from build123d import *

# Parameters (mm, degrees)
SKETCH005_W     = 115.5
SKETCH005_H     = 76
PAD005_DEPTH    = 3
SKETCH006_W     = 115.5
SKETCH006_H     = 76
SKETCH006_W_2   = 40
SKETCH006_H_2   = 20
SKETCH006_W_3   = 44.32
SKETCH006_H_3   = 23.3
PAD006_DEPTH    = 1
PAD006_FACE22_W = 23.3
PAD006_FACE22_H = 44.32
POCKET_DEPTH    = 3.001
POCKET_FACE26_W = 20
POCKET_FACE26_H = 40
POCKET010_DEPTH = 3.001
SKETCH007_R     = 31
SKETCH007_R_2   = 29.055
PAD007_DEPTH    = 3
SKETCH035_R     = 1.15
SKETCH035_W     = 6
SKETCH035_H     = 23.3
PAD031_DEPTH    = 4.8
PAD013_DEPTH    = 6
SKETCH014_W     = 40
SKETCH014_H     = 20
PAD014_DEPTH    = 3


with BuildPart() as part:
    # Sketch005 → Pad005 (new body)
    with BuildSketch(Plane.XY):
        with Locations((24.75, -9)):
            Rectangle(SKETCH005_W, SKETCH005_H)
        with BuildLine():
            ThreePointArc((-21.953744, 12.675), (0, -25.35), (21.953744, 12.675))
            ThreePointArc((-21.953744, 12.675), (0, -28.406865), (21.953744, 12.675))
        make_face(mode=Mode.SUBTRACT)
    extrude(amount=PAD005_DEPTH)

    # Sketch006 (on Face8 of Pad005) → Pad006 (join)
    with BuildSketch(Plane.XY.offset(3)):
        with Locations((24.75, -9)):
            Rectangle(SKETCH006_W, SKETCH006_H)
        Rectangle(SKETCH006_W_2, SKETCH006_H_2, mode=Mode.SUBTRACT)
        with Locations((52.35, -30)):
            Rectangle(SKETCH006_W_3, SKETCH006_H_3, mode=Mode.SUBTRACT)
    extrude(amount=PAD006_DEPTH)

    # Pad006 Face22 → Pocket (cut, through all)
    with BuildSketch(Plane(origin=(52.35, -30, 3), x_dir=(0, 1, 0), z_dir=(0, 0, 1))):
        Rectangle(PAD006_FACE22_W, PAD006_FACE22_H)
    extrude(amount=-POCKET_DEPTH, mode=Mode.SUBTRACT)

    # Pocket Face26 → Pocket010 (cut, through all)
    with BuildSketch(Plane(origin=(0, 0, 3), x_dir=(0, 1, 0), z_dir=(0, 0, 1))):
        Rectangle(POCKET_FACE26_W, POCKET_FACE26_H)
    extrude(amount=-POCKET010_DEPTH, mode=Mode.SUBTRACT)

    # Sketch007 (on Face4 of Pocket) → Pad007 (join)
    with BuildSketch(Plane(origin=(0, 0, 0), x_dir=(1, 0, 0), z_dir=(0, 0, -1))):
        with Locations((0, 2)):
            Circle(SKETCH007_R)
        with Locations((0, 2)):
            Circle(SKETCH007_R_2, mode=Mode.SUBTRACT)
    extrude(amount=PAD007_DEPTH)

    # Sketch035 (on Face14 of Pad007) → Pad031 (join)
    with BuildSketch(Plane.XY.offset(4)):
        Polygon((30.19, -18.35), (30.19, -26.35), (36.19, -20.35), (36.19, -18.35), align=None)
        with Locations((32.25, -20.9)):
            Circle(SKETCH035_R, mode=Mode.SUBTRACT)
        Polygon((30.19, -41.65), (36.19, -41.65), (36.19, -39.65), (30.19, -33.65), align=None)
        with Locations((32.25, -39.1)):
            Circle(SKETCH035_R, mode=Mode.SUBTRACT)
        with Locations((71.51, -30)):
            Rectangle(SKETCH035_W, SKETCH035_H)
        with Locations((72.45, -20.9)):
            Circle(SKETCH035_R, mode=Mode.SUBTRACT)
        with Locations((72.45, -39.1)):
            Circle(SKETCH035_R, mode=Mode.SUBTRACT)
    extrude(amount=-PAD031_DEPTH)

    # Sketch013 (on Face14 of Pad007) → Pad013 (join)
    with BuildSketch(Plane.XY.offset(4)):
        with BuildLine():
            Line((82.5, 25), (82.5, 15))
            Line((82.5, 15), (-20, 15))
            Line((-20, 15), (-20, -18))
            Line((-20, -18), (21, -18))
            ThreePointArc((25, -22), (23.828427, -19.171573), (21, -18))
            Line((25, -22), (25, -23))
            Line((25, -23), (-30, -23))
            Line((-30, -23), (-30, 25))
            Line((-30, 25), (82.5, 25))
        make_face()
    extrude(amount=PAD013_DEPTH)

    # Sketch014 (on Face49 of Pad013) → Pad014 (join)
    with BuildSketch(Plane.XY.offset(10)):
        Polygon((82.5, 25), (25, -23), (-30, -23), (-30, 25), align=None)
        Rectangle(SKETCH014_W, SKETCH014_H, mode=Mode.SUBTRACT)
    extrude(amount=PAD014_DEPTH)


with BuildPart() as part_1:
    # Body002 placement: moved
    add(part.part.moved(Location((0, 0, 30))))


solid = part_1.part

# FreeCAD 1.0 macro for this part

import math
import FreeCAD as App
import Part
import Sketcher

V = App.Vector
Q = App.Units.Quantity

doc = App.newDocument("Part")
body = doc.addObject("PartDesign::Body", "Body")

sketch1 = doc.addObject("Sketcher::SketchObject", "Sketch")
body.addObject(sketch1)
sketch1.AttachmentSupport = (doc.XY_Plane, [""])
sketch1.MapMode = "FlatFace"
sketch1.addGeometry(Part.LineSegment(V(-33, 29, 0), V(-33, -47, 0)), False)
sketch1.addGeometry(Part.LineSegment(V(-33, -47, 0), V(82, -47, 0)), False)
sketch1.addGeometry(Part.LineSegment(V(82, -47, 0), V(82, 29, 0)), False)
sketch1.addGeometry(Part.LineSegment(V(82, 29, 0), V(-33, 29, 0)), False)
sketch1.addGeometry(Part.ArcOfCircle(Part.Circle(V(0, -2, 0), V(0, 0, 1), 26), math.radians(146), math.radians(394)), False)
sketch1.addGeometry(Part.ArcOfCircle(Part.Circle(V(0, 0, 0), V(0, 0, 1), 25), math.radians(150), math.radians(390)), False)
sketch1.addConstraint(Sketcher.Constraint("Coincident", 0, 2, 1, 1))
sketch1.addConstraint(Sketcher.Constraint("Coincident", 1, 2, 2, 1))
sketch1.addConstraint(Sketcher.Constraint("Coincident", 2, 2, 3, 1))
sketch1.addConstraint(Sketcher.Constraint("Coincident", 3, 2, 0, 1))
sketch1.addConstraint(Sketcher.Constraint("Coincident", 4, 1, 5, 1))
sketch1.addConstraint(Sketcher.Constraint("Coincident", 5, 2, 4, 2))
sketch1.addConstraint(Sketcher.Constraint("Vertical", 0))
sketch1.addConstraint(Sketcher.Constraint("Horizontal", 1))
sketch1.addConstraint(Sketcher.Constraint("Vertical", 2))
sketch1.addConstraint(Sketcher.Constraint("Horizontal", 3))
sketch1.addConstraint(Sketcher.Constraint("Coincident", 5, 3, -1, 1))
sketch1.addConstraint(Sketcher.Constraint("PointOnObject", 4, 3, -2))
sketch1.addConstraint(Sketcher.Constraint("DistanceY", 0, 2, 0, 1, Q("76 mm")))
sketch1.addConstraint(Sketcher.Constraint("Radius", 5, Q("25.35 mm")))
sketch1.addConstraint(Sketcher.Constraint("DistanceX", 1, 1, 1, 2, Q("115.5 mm")))
sketch1.addConstraint(Sketcher.Constraint("DistanceY", 4, 3, -1, 1, Q("2 mm")))
sketch1.addConstraint(Sketcher.Constraint("DistanceX", 0, 2, -1, 1, Q("33 mm")))
sketch1.addConstraint(Sketcher.Constraint("DistanceY", 0, 2, -1, 1, Q("47 mm")))
sketch1.addConstraint(Sketcher.Constraint("DistanceY", -1, 1, 4, 1, Q("12.675 mm")))
pad1 = doc.addObject("PartDesign::Pad", "Pad")
body.addObject(pad1)
pad1.Profile = sketch1
pad1.Length = 3

sketch2 = doc.addObject("Sketcher::SketchObject", "Sketch001")
body.addObject(sketch2)
sketch2.AttachmentSupport = (doc.XY_Plane, [""])
sketch2.MapMode = "FlatFace"
sketch2.AttachmentOffset = App.Placement(V(0, 0, 3), App.Rotation())
sketch2.addGeometry(Part.LineSegment(V(-33, 29, 0), V(-33, -47, 0)), False)
sketch2.addGeometry(Part.LineSegment(V(-33, -47, 0), V(82, -47, 0)), False)
sketch2.addGeometry(Part.LineSegment(V(82, -47, 0), V(82, 29, 0)), False)
sketch2.addGeometry(Part.LineSegment(V(82, 29, 0), V(-33, 29, 0)), False)
sketch2.addGeometry(Part.LineSegment(V(75, -42, 0), V(30, -42, 0)), False)
sketch2.addGeometry(Part.LineSegment(V(30, -42, 0), V(30, -18, 0)), False)
sketch2.addGeometry(Part.LineSegment(V(30, -18, 0), V(75, -18, 0)), False)
sketch2.addGeometry(Part.LineSegment(V(75, -18, 0), V(75, -42, 0)), False)
sketch2.addGeometry(Part.LineSegment(V(20, -10, 0), V(-20, -10, 0)), False)
sketch2.addGeometry(Part.LineSegment(V(-20, -10, 0), V(-20, 10, 0)), False)
sketch2.addGeometry(Part.LineSegment(V(-20, 10, 0), V(20, 10, 0)), False)
sketch2.addGeometry(Part.LineSegment(V(20, 10, 0), V(20, -10, 0)), False)
sketch2.addConstraint(Sketcher.Constraint("Coincident", 0, 2, 1, 1))
sketch2.addConstraint(Sketcher.Constraint("Coincident", 1, 2, 2, 1))
sketch2.addConstraint(Sketcher.Constraint("Coincident", 2, 2, 3, 1))
sketch2.addConstraint(Sketcher.Constraint("Coincident", 3, 2, 0, 1))
sketch2.addConstraint(Sketcher.Constraint("Coincident", 4, 2, 5, 1))
sketch2.addConstraint(Sketcher.Constraint("Coincident", 5, 2, 6, 1))
sketch2.addConstraint(Sketcher.Constraint("Coincident", 6, 2, 7, 1))
sketch2.addConstraint(Sketcher.Constraint("Coincident", 7, 2, 4, 1))
sketch2.addConstraint(Sketcher.Constraint("Coincident", 8, 2, 9, 1))
sketch2.addConstraint(Sketcher.Constraint("Coincident", 9, 2, 10, 1))
sketch2.addConstraint(Sketcher.Constraint("Coincident", 10, 2, 11, 1))
sketch2.addConstraint(Sketcher.Constraint("Coincident", 11, 2, 8, 1))
sketch2.addConstraint(Sketcher.Constraint("Vertical", 0))
sketch2.addConstraint(Sketcher.Constraint("Horizontal", 1))
sketch2.addConstraint(Sketcher.Constraint("Vertical", 2))
sketch2.addConstraint(Sketcher.Constraint("Horizontal", 3))
sketch2.addConstraint(Sketcher.Constraint("Horizontal", 4))
sketch2.addConstraint(Sketcher.Constraint("Vertical", 5))
sketch2.addConstraint(Sketcher.Constraint("Horizontal", 6))
sketch2.addConstraint(Sketcher.Constraint("Vertical", 7))
sketch2.addConstraint(Sketcher.Constraint("Horizontal", 8))
sketch2.addConstraint(Sketcher.Constraint("Vertical", 9))
sketch2.addConstraint(Sketcher.Constraint("Horizontal", 10))
sketch2.addConstraint(Sketcher.Constraint("Vertical", 11))
sketch2.addConstraint(Sketcher.Constraint("Symmetric", 8, 2, 10, 2, -1, 1))
sketch2.addConstraint(Sketcher.Constraint("DistanceX", 8, 2, 8, 1, Q("40 mm")))
sketch2.addConstraint(Sketcher.Constraint("DistanceY", 0, 2, 0, 1, Q("76 mm")))
sketch2.addConstraint(Sketcher.Constraint("DistanceY", 9, 1, 9, 2, Q("20 mm")))
sketch2.addConstraint(Sketcher.Constraint("DistanceX", 1, 1, 1, 2, Q("115.5 mm")))
sketch2.addConstraint(Sketcher.Constraint("DistanceY", 5, 1, 5, 2, Q("23.3 mm")))
sketch2.addConstraint(Sketcher.Constraint("DistanceX", 0, 2, -1, 1, Q("33 mm")))
sketch2.addConstraint(Sketcher.Constraint("DistanceY", 0, 2, -1, 1, Q("47 mm")))
sketch2.addConstraint(Sketcher.Constraint("DistanceX", 4, 2, 4, 1, Q("44.32 mm")))
sketch2.addConstraint(Sketcher.Constraint("DistanceX", -1, 1, 4, 2, Q("30.19 mm")))
sketch2.addConstraint(Sketcher.Constraint("DistanceY", 4, 2, -1, 1, Q("41.65 mm")))
pad2 = doc.addObject("PartDesign::Pad", "Pad001")
body.addObject(pad2)
pad2.Profile = sketch2
pad2.Length = 1

sketch3 = doc.addObject("Sketcher::SketchObject", "Sketch002")
body.addObject(sketch3)
sketch3.AttachmentSupport = (doc.XY_Plane, [""])
sketch3.MapMode = "FlatFace"
sketch3.AttachmentOffset = App.Placement(V(0, 0, 3), App.Rotation())
sketch3.addGeometry(Part.LineSegment(V(30, -42, 0), V(75, -42, 0)), False)
sketch3.addGeometry(Part.LineSegment(V(75, -42, 0), V(75, -18, 0)), False)
sketch3.addGeometry(Part.LineSegment(V(75, -18, 0), V(30, -18, 0)), False)
sketch3.addGeometry(Part.LineSegment(V(30, -18, 0), V(30, -42, 0)), False)
sketch3.addConstraint(Sketcher.Constraint("Coincident", 0, 2, 1, 1))
sketch3.addConstraint(Sketcher.Constraint("Coincident", 1, 2, 2, 1))
sketch3.addConstraint(Sketcher.Constraint("Coincident", 2, 2, 3, 1))
sketch3.addConstraint(Sketcher.Constraint("Coincident", 3, 2, 0, 1))
sketch3.addConstraint(Sketcher.Constraint("Horizontal", 0))
sketch3.addConstraint(Sketcher.Constraint("Vertical", 1))
sketch3.addConstraint(Sketcher.Constraint("Horizontal", 2))
sketch3.addConstraint(Sketcher.Constraint("Vertical", 3))
sketch3.addConstraint(Sketcher.Constraint("DistanceY", 1, 1, 1, 2, Q("23.3 mm")))
sketch3.addConstraint(Sketcher.Constraint("DistanceX", 0, 1, 0, 2, Q("44.32 mm")))
sketch3.addConstraint(Sketcher.Constraint("DistanceX", -1, 1, 0, 2, Q("74.51 mm")))
sketch3.addConstraint(Sketcher.Constraint("DistanceY", 0, 2, -1, 1, Q("41.65 mm")))
pocket1 = doc.addObject("PartDesign::Pocket", "Pocket")
body.addObject(pocket1)
pocket1.Profile = sketch3
pocket1.Type = "ThroughAll"

sketch4 = doc.addObject("Sketcher::SketchObject", "Sketch003")
body.addObject(sketch4)
sketch4.AttachmentSupport = (doc.XY_Plane, [""])
sketch4.MapMode = "FlatFace"
sketch4.AttachmentOffset = App.Placement(V(0, 0, 3), App.Rotation())
sketch4.addGeometry(Part.LineSegment(V(-20, -10, 0), V(20, -10, 0)), False)
sketch4.addGeometry(Part.LineSegment(V(20, -10, 0), V(20, 10, 0)), False)
sketch4.addGeometry(Part.LineSegment(V(20, 10, 0), V(-20, 10, 0)), False)
sketch4.addGeometry(Part.LineSegment(V(-20, 10, 0), V(-20, -10, 0)), False)
sketch4.addConstraint(Sketcher.Constraint("Coincident", 0, 2, 1, 1))
sketch4.addConstraint(Sketcher.Constraint("Coincident", 1, 2, 2, 1))
sketch4.addConstraint(Sketcher.Constraint("Coincident", 2, 2, 3, 1))
sketch4.addConstraint(Sketcher.Constraint("Coincident", 3, 2, 0, 1))
sketch4.addConstraint(Sketcher.Constraint("Horizontal", 0))
sketch4.addConstraint(Sketcher.Constraint("Vertical", 1))
sketch4.addConstraint(Sketcher.Constraint("Horizontal", 2))
sketch4.addConstraint(Sketcher.Constraint("Vertical", 3))
sketch4.addConstraint(Sketcher.Constraint("Symmetric", 0, 2, 2, 2, -1, 1))
sketch4.addConstraint(Sketcher.Constraint("DistanceX", 0, 1, 0, 2, Q("40 mm")))
sketch4.addConstraint(Sketcher.Constraint("DistanceY", 1, 1, 1, 2, Q("20 mm")))
pocket2 = doc.addObject("PartDesign::Pocket", "Pocket001")
body.addObject(pocket2)
pocket2.Profile = sketch4
pocket2.Type = "ThroughAll"

sketch5 = doc.addObject("Sketcher::SketchObject", "Sketch004")
body.addObject(sketch5)
sketch5.AttachmentSupport = (doc.XY_Plane, [""])
sketch5.MapMode = "FlatFace"
sketch5.addGeometry(Part.Circle(V(0, -2, 0), V(0, 0, 1), 31), False)
sketch5.addGeometry(Part.Circle(V(0, -2, 0), V(0, 0, 1), 29), False)
sketch5.addConstraint(Sketcher.Constraint("Coincident", 1, 3, 0, 3))
sketch5.addConstraint(Sketcher.Constraint("PointOnObject", 0, 3, -2))
sketch5.addConstraint(Sketcher.Constraint("Diameter", 0, Q("62 mm")))
sketch5.addConstraint(Sketcher.Constraint("Diameter", 1, Q("58.11 mm")))
sketch5.addConstraint(Sketcher.Constraint("DistanceY", 0, 3, -1, 1, Q("2 mm")))
pad3 = doc.addObject("PartDesign::Pad", "Pad002")
body.addObject(pad3)
pad3.Profile = sketch5
pad3.Length = 3
pad3.Reversed = True

sketch6 = doc.addObject("Sketcher::SketchObject", "Sketch005")
body.addObject(sketch6)
sketch6.AttachmentSupport = (doc.XY_Plane, [""])
sketch6.MapMode = "FlatFace"
sketch6.AttachmentOffset = App.Placement(V(0, 0, 4), App.Rotation())
sketch6.addGeometry(Part.LineSegment(V(30.2, -18.4, 0), V(30.2, -26.4, 0)), False)
sketch6.addGeometry(Part.LineSegment(V(30.2, -26.4, 0), V(36.2, -20.4, 0)), False)
sketch6.addGeometry(Part.LineSegment(V(36.2, -20.4, 0), V(36.2, -18.4, 0)), False)
sketch6.addGeometry(Part.LineSegment(V(36.2, -18.4, 0), V(30.2, -18.4, 0)), False)
sketch6.addGeometry(Part.Circle(V(32.2, -20.9, 0), V(0, 0, 1), 1.1), False)
sketch6.addGeometry(Part.LineSegment(V(30.2, -41.6, 0), V(36.2, -41.6, 0)), False)
sketch6.addGeometry(Part.LineSegment(V(36.2, -41.6, 0), V(36.2, -39.6, 0)), False)
sketch6.addGeometry(Part.LineSegment(V(36.2, -39.6, 0), V(30.2, -33.6, 0)), False)
sketch6.addGeometry(Part.LineSegment(V(30.2, -33.6, 0), V(30.2, -41.6, 0)), False)
sketch6.addGeometry(Part.Circle(V(32.2, -39.1, 0), V(0, 0, 1), 1.1), False)
sketch6.addGeometry(Part.LineSegment(V(68.5, -18.4, 0), V(68.5, -41.6, 0)), False)
sketch6.addGeometry(Part.LineSegment(V(68.5, -41.6, 0), V(74.5, -41.6, 0)), False)
sketch6.addGeometry(Part.LineSegment(V(74.5, -41.6, 0), V(74.5, -18.4, 0)), False)
sketch6.addGeometry(Part.LineSegment(V(74.5, -18.4, 0), V(68.5, -18.4, 0)), False)
sketch6.addGeometry(Part.Circle(V(72.5, -39.1, 0), V(0, 0, 1), 1.1), False)
sketch6.addGeometry(Part.Circle(V(72.5, -20.9, 0), V(0, 0, 1), 1.1), False)
sketch6.addConstraint(Sketcher.Constraint("Coincident", 0, 2, 1, 1))
sketch6.addConstraint(Sketcher.Constraint("Coincident", 1, 2, 2, 1))
sketch6.addConstraint(Sketcher.Constraint("Coincident", 2, 2, 3, 1))
sketch6.addConstraint(Sketcher.Constraint("Coincident", 3, 2, 0, 1))
sketch6.addConstraint(Sketcher.Constraint("Coincident", 5, 2, 6, 1))
sketch6.addConstraint(Sketcher.Constraint("Coincident", 6, 2, 7, 1))
sketch6.addConstraint(Sketcher.Constraint("Coincident", 7, 2, 8, 1))
sketch6.addConstraint(Sketcher.Constraint("Coincident", 8, 2, 5, 1))
sketch6.addConstraint(Sketcher.Constraint("Coincident", 10, 2, 11, 1))
sketch6.addConstraint(Sketcher.Constraint("Coincident", 11, 2, 12, 1))
sketch6.addConstraint(Sketcher.Constraint("Coincident", 12, 2, 13, 1))
sketch6.addConstraint(Sketcher.Constraint("Coincident", 13, 2, 10, 1))
sketch6.addConstraint(Sketcher.Constraint("Vertical", 0))
sketch6.addConstraint(Sketcher.Constraint("Vertical", 2))
sketch6.addConstraint(Sketcher.Constraint("Horizontal", 3))
sketch6.addConstraint(Sketcher.Constraint("Horizontal", 5))
sketch6.addConstraint(Sketcher.Constraint("Vertical", 6))
sketch6.addConstraint(Sketcher.Constraint("Vertical", 8))
sketch6.addConstraint(Sketcher.Constraint("Vertical", 10))
sketch6.addConstraint(Sketcher.Constraint("Horizontal", 11))
sketch6.addConstraint(Sketcher.Constraint("Vertical", 12))
sketch6.addConstraint(Sketcher.Constraint("Horizontal", 13))
sketch6.addConstraint(Sketcher.Constraint("Equal", 4, 9))
sketch6.addConstraint(Sketcher.Constraint("Equal", 9, 14))
sketch6.addConstraint(Sketcher.Constraint("Equal", 14, 15))
sketch6.addConstraint(Sketcher.Constraint("Perpendicular", 1, 7))
sketch6.addConstraint(Sketcher.Constraint("Horizontal", 9, 3, 14, 3))
sketch6.addConstraint(Sketcher.Constraint("Horizontal", 4, 3, 15, 3))
sketch6.addConstraint(Sketcher.Constraint("Horizontal", 8, 2, 10, 2))
sketch6.addConstraint(Sketcher.Constraint("Horizontal", 3, 2, 12, 2))
sketch6.addConstraint(Sketcher.Constraint("Vertical", 4, 3, 9, 3))
sketch6.addConstraint(Sketcher.Constraint("Vertical", 14, 3, 15, 3))
sketch6.addConstraint(Sketcher.Constraint("Vertical", 2, 2, 5, 2))
sketch6.addConstraint(Sketcher.Constraint("Vertical", 3, 2, 7, 2))
sketch6.addConstraint(Sketcher.Constraint("Equal", 5, 11))
sketch6.addConstraint(Sketcher.Constraint("Equal", 2, 6))
sketch6.addConstraint(Sketcher.Constraint("Equal", 0, 8))
sketch6.addConstraint(Sketcher.Constraint("Diameter", 4, Q("2.3 mm")))
sketch6.addConstraint(Sketcher.Constraint("DistanceX", 3, 2, 3, 1, Q("6 mm")))
sketch6.addConstraint(Sketcher.Constraint("DistanceY", 0, 2, 0, 1, Q("8 mm")))
sketch6.addConstraint(Sketcher.Constraint("DistanceY", 10, 2, 10, 1, Q("23.3 mm")))
sketch6.addConstraint(Sketcher.Constraint("DistanceY", 4, 3, -1, 1, Q("20.9 mm")))
sketch6.addConstraint(Sketcher.Constraint("DistanceY", 9, 3, -1, 1, Q("39.1 mm")))
sketch6.addConstraint(Sketcher.Constraint("DistanceX", 9, 3, 14, 3, Q("40.2 mm")))
sketch6.addConstraint(Sketcher.Constraint("DistanceX", -1, 1, 4, 3, Q("32.25 mm")))
sketch6.addConstraint(Sketcher.Constraint("DistanceX", -1, 1, 0, 2, Q("30.19 mm")))
sketch6.addConstraint(Sketcher.Constraint("DistanceY", 0, 2, -1, 1, Q("26.35 mm")))
sketch6.addConstraint(Sketcher.Constraint("DistanceX", -1, 1, 10, 2, Q("68.51 mm")))
pad4 = doc.addObject("PartDesign::Pad", "Pad003")
body.addObject(pad4)
pad4.Profile = sketch6
pad4.Length = 4.8
pad4.Reversed = True

sketch7 = doc.addObject("Sketcher::SketchObject", "Sketch006")
body.addObject(sketch7)
sketch7.AttachmentSupport = (doc.XY_Plane, [""])
sketch7.MapMode = "FlatFace"
sketch7.AttachmentOffset = App.Placement(V(0, 0, 4), App.Rotation())
sketch7.addGeometry(Part.LineSegment(V(82.5, 15, 0), V(82.5, 25, 0)), False)
sketch7.addGeometry(Part.LineSegment(V(82.5, 25, 0), V(-30, 25, 0)), False)
sketch7.addGeometry(Part.LineSegment(V(-30, 25, 0), V(-30, -23, 0)), False)
sketch7.addGeometry(Part.LineSegment(V(-30, -23, 0), V(25, -23, 0)), False)
sketch7.addGeometry(Part.LineSegment(V(25, -23, 0), V(25, -22, 0)), False)
sketch7.addGeometry(Part.ArcOfCircle(Part.Circle(V(21, -22, 0), V(0, 0, 1), 4), math.radians(0), math.radians(90)), False)
sketch7.addGeometry(Part.LineSegment(V(21, -18, 0), V(-20, -18, 0)), False)
sketch7.addGeometry(Part.LineSegment(V(-20, -18, 0), V(-20, 15, 0)), False)
sketch7.addGeometry(Part.LineSegment(V(-20, 15, 0), V(82.5, 15, 0)), False)
sketch7.addConstraint(Sketcher.Constraint("Coincident", 0, 2, 1, 1))
sketch7.addConstraint(Sketcher.Constraint("Coincident", 1, 2, 2, 1))
sketch7.addConstraint(Sketcher.Constraint("Coincident", 2, 2, 3, 1))
sketch7.addConstraint(Sketcher.Constraint("Coincident", 3, 2, 4, 1))
sketch7.addConstraint(Sketcher.Constraint("Tangent", 4, 2, 5, 1))
sketch7.addConstraint(Sketcher.Constraint("Tangent", 5, 2, 6, 1))
sketch7.addConstraint(Sketcher.Constraint("Coincident", 6, 2, 7, 1))
sketch7.addConstraint(Sketcher.Constraint("Coincident", 7, 2, 8, 1))
sketch7.addConstraint(Sketcher.Constraint("Coincident", 8, 2, 0, 1))
sketch7.addConstraint(Sketcher.Constraint("Vertical", 0))
sketch7.addConstraint(Sketcher.Constraint("Horizontal", 1))
sketch7.addConstraint(Sketcher.Constraint("Vertical", 2))
sketch7.addConstraint(Sketcher.Constraint("Horizontal", 3))
sketch7.addConstraint(Sketcher.Constraint("Vertical", 4))
sketch7.addConstraint(Sketcher.Constraint("Horizontal", 6))
sketch7.addConstraint(Sketcher.Constraint("Vertical", 7))
sketch7.addConstraint(Sketcher.Constraint("Horizontal", 8))
sketch7.addConstraint(Sketcher.Constraint("Radius", 5, Q("4 mm")))
sketch7.addConstraint(Sketcher.Constraint("DistanceX", 3, 1, 3, 2, Q("55 mm")))
sketch7.addConstraint(Sketcher.Constraint("DistanceX", 6, 2, 6, 1, Q("41 mm")))
sketch7.addConstraint(Sketcher.Constraint("DistanceY", 0, 1, 0, 2, Q("10 mm")))
sketch7.addConstraint(Sketcher.Constraint("DistanceY", 2, 2, 2, 1, Q("48 mm")))
sketch7.addConstraint(Sketcher.Constraint("DistanceY", 4, 1, 4, 2, Q("1 mm")))
sketch7.addConstraint(Sketcher.Constraint("DistanceX", 1, 2, 1, 1, Q("112.5 mm")))
sketch7.addConstraint(Sketcher.Constraint("DistanceX", -1, 1, 5, 3, Q("21 mm")))
sketch7.addConstraint(Sketcher.Constraint("DistanceY", 5, 3, -1, 1, Q("22 mm")))
pad5 = doc.addObject("PartDesign::Pad", "Pad004")
body.addObject(pad5)
pad5.Profile = sketch7
pad5.Length = 6

sketch8 = doc.addObject("Sketcher::SketchObject", "Sketch007")
body.addObject(sketch8)
sketch8.AttachmentSupport = (doc.XY_Plane, [""])
sketch8.MapMode = "FlatFace"
sketch8.AttachmentOffset = App.Placement(V(0, 0, 10), App.Rotation())
sketch8.addGeometry(Part.LineSegment(V(25, -23, 0), V(82, 25, 0)), False)
sketch8.addGeometry(Part.LineSegment(V(82, 25, 0), V(-30, 25, 0)), False)
sketch8.addGeometry(Part.LineSegment(V(-30, 25, 0), V(-30, -23, 0)), False)
sketch8.addGeometry(Part.LineSegment(V(-30, -23, 0), V(25, -23, 0)), False)
sketch8.addGeometry(Part.LineSegment(V(-20, -10, 0), V(-20, 10, 0)), False)
sketch8.addGeometry(Part.LineSegment(V(-20, 10, 0), V(20, 10, 0)), False)
sketch8.addGeometry(Part.LineSegment(V(20, 10, 0), V(20, -10, 0)), False)
sketch8.addGeometry(Part.LineSegment(V(20, -10, 0), V(-20, -10, 0)), False)
sketch8.addConstraint(Sketcher.Constraint("Coincident", 0, 2, 1, 1))
sketch8.addConstraint(Sketcher.Constraint("Coincident", 1, 2, 2, 1))
sketch8.addConstraint(Sketcher.Constraint("Coincident", 2, 2, 3, 1))
sketch8.addConstraint(Sketcher.Constraint("Coincident", 3, 2, 0, 1))
sketch8.addConstraint(Sketcher.Constraint("Coincident", 4, 2, 5, 1))
sketch8.addConstraint(Sketcher.Constraint("Coincident", 5, 2, 6, 1))
sketch8.addConstraint(Sketcher.Constraint("Coincident", 6, 2, 7, 1))
sketch8.addConstraint(Sketcher.Constraint("Coincident", 7, 2, 4, 1))
sketch8.addConstraint(Sketcher.Constraint("Horizontal", 1))
sketch8.addConstraint(Sketcher.Constraint("Vertical", 2))
sketch8.addConstraint(Sketcher.Constraint("Horizontal", 3))
sketch8.addConstraint(Sketcher.Constraint("Vertical", 4))
sketch8.addConstraint(Sketcher.Constraint("Horizontal", 5))
sketch8.addConstraint(Sketcher.Constraint("Vertical", 6))
sketch8.addConstraint(Sketcher.Constraint("Horizontal", 7))
sketch8.addConstraint(Sketcher.Constraint("Symmetric", 4, 2, 6, 2, -1, 1))
sketch8.addConstraint(Sketcher.Constraint("DistanceX", 3, 1, 3, 2, Q("55 mm")))
sketch8.addConstraint(Sketcher.Constraint("DistanceX", 5, 1, 5, 2, Q("40 mm")))
sketch8.addConstraint(Sketcher.Constraint("DistanceY", 2, 2, 2, 1, Q("48 mm")))
sketch8.addConstraint(Sketcher.Constraint("DistanceY", 4, 1, 4, 2, Q("20 mm")))
sketch8.addConstraint(Sketcher.Constraint("DistanceX", 1, 2, 1, 1, Q("112.5 mm")))
sketch8.addConstraint(Sketcher.Constraint("DistanceY", -1, 1, 0, 2, Q("25 mm")))
sketch8.addConstraint(Sketcher.Constraint("DistanceX", 1, 2, -1, 1, Q("30 mm")))
pad6 = doc.addObject("PartDesign::Pad", "Pad005")
body.addObject(pad6)
pad6.Profile = sketch8
pad6.Length = 3
body2 = doc.addObject("PartDesign::Body", "Body001")
doc.recompute()

body.Placement = App.Placement(V(0, 0, 30), App.Rotation(V(0, 0, 1), 0))
boolean = doc.addObject("PartDesign::Boolean", "Boolean")
body2.addObject(boolean)
boolean.Type = "Fuse"
boolean.addObjects([body])

doc.recompute()
